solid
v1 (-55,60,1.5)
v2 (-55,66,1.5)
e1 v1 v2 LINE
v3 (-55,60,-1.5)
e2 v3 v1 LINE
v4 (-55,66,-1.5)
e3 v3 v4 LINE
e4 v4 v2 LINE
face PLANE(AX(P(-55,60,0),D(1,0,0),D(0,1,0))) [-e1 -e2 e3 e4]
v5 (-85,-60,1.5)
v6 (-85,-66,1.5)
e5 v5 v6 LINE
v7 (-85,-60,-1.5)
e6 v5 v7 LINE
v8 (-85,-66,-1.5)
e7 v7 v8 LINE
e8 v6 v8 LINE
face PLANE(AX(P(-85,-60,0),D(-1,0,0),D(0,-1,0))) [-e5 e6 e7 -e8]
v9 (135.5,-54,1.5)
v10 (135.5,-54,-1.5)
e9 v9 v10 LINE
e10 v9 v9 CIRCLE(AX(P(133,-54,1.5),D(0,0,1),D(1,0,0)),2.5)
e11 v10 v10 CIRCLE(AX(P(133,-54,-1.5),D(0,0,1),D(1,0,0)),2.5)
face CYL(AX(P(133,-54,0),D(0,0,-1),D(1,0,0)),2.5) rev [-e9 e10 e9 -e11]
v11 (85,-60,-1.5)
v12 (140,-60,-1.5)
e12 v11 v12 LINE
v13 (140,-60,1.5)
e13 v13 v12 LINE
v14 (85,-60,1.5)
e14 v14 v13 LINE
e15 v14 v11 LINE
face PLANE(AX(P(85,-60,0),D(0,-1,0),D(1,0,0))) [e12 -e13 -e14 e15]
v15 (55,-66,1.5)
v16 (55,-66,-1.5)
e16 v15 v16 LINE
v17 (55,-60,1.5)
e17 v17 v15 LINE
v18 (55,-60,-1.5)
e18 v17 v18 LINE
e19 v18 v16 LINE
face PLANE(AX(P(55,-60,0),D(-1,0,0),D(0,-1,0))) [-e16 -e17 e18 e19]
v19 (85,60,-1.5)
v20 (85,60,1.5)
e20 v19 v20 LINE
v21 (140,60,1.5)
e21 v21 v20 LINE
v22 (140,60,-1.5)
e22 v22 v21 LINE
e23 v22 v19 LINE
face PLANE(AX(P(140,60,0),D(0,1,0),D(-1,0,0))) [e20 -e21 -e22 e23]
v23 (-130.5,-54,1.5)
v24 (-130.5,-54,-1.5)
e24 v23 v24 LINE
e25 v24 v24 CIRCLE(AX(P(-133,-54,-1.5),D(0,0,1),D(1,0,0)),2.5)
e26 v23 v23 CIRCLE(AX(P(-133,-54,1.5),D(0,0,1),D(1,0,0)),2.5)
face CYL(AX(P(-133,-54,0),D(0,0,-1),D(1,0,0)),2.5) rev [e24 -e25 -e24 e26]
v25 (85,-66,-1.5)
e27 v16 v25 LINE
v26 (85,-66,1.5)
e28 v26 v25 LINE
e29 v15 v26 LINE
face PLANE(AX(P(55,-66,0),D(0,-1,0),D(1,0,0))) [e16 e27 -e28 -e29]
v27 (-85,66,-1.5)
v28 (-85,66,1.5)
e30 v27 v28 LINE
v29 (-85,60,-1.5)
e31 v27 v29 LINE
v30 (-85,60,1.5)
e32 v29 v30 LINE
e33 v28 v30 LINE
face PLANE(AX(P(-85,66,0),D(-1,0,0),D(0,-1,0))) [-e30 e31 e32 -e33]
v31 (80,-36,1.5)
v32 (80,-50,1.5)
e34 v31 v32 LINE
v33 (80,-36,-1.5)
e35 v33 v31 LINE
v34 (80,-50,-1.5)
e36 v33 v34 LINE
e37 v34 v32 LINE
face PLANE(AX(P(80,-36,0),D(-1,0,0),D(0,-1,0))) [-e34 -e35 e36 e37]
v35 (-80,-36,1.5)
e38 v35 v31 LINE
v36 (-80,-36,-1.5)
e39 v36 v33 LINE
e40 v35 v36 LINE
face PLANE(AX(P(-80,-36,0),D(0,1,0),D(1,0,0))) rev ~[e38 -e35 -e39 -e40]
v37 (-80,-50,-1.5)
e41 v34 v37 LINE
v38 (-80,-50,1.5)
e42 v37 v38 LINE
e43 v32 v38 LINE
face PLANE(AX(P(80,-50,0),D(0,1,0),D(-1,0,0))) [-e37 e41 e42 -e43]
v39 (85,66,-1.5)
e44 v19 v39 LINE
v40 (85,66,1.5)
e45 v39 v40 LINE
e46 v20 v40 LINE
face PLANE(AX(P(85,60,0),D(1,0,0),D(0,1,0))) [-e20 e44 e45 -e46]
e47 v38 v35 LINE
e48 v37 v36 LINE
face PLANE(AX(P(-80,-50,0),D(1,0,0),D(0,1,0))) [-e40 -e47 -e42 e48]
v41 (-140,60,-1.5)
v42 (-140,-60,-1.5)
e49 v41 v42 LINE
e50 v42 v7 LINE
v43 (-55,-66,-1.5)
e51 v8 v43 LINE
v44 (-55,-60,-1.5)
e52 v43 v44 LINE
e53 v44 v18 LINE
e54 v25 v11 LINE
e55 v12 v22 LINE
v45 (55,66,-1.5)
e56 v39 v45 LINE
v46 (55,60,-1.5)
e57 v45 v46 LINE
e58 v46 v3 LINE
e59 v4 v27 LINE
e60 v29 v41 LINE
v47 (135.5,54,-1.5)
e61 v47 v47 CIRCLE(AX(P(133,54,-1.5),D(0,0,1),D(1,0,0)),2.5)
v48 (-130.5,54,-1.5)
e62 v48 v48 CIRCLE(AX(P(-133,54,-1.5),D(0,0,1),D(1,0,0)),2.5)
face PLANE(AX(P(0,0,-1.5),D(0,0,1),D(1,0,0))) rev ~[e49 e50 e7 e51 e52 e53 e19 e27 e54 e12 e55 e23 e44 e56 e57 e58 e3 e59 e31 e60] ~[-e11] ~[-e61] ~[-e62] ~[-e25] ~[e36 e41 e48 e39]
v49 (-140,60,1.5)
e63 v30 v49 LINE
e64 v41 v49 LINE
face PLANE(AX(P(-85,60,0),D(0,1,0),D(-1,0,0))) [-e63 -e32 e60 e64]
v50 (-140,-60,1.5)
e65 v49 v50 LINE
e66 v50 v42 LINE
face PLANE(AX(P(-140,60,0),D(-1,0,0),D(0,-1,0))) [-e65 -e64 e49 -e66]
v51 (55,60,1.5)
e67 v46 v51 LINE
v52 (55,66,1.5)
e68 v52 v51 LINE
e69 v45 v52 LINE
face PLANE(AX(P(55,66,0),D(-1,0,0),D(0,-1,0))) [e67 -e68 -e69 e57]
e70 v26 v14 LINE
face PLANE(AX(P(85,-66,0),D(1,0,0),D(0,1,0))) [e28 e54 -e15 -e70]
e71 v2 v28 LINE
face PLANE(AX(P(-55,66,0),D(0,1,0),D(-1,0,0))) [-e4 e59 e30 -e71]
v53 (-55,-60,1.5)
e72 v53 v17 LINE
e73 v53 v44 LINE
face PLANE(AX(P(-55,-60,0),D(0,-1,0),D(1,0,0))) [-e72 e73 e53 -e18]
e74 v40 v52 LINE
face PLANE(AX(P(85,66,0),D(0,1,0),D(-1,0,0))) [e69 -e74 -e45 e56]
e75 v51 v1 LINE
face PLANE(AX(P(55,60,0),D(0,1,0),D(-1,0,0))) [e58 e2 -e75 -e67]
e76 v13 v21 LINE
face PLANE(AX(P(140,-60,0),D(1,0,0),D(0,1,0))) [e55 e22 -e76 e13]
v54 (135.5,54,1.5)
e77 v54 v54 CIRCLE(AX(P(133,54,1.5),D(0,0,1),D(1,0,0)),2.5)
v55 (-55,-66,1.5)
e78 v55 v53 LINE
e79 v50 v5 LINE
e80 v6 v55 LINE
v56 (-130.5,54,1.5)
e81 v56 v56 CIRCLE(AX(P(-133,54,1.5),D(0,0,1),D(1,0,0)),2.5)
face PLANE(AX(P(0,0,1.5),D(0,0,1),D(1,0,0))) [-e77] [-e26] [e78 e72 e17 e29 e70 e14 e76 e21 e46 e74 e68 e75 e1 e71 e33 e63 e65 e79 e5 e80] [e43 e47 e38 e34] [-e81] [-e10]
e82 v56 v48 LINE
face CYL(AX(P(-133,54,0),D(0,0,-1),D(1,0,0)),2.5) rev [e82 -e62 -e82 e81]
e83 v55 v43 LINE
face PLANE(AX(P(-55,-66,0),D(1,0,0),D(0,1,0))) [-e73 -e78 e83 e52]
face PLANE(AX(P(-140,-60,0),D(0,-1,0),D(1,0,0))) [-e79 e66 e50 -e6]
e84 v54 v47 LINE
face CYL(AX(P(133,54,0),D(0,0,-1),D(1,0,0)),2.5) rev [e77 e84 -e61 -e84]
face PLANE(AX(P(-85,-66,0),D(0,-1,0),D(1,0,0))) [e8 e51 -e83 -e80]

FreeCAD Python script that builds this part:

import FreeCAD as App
import Part
import Sketcher


def add_polygon(sketch, points):
    """Adds a closed chain of lines whose ends are joined by coincident constraints."""
    first, n = sketch.GeometryCount, len(points)
    for a, b in zip(points, points[1:] + points[:1]):
        sketch.addGeometry(Part.LineSegment(App.Vector(*a, 0), App.Vector(*b, 0)), False)
    for i in range(n):
        sketch.addConstraint(Sketcher.Constraint("Coincident", first + i, 2, first + (i + 1) % n, 1))

doc = App.newDocument("Part")
body = doc.addObject("PartDesign::Body", "Body")

sketch1 = body.newObject("Sketcher::SketchObject", "Sketch")
sketch1.AttachmentSupport = (doc.getObject("XY_Plane"), [""])
sketch1.MapMode = "FlatFace"
add_polygon(sketch1, [(140, -60), (140, 60), (85, 60), (85, 66), (55, 66), (55, 60), (-55, 60), (-55, 66), (-85, 66), (-85, 60), (-140, 60), (-140, -60), (-85, -60), (-85, -66), (-55, -66), (-55, -60), (55, -60), (55, -66), (85, -66), (85, -60)])
sketch1.addGeometry(Part.Circle(App.Vector(-133, -54, 0), App.Vector(0, 0, 1), 2.5), False)
add_polygon(sketch1, [(80, -50), (-80, -50), (-80, -36), (80, -36)])
sketch1.addGeometry(Part.Circle(App.Vector(133, -54, 0), App.Vector(0, 0, 1), 2.5), False)
sketch1.addGeometry(Part.Circle(App.Vector(-133, 54, 0), App.Vector(0, 0, 1), 2.5), False)
sketch1.addGeometry(Part.Circle(App.Vector(133, 54, 0), App.Vector(0, 0, 1), 2.5), False)
sketch1.addConstraint([
    Sketcher.Constraint("Vertical", 0),
    Sketcher.Constraint("Horizontal", 1),
    Sketcher.Constraint("Vertical", 2),
    Sketcher.Constraint("Horizontal", 3),
    Sketcher.Constraint("Vertical", 4),
    Sketcher.Constraint("Horizontal", 5),
    Sketcher.Constraint("Vertical", 6),
    Sketcher.Constraint("Horizontal", 7),
    Sketcher.Constraint("Vertical", 8),
    Sketcher.Constraint("Horizontal", 9),
    Sketcher.Constraint("Vertical", 10),
    Sketcher.Constraint("Horizontal", 11),
    Sketcher.Constraint("Vertical", 12),
    Sketcher.Constraint("Horizontal", 13),
    Sketcher.Constraint("Vertical", 14),
    Sketcher.Constraint("Horizontal", 15),
    Sketcher.Constraint("Vertical", 16),
    Sketcher.Constraint("Horizontal", 17),
    Sketcher.Constraint("Vertical", 18),
    Sketcher.Constraint("Horizontal", 19),
    Sketcher.Constraint("Horizontal", 21),
    Sketcher.Constraint("Vertical", 22),
    Sketcher.Constraint("Horizontal", 23),
    Sketcher.Constraint("Vertical", 24),
    Sketcher.Constraint("Equal", 20, 25),
    Sketcher.Constraint("Equal", 25, 26),
    Sketcher.Constraint("Equal", 26, 27),
    Sketcher.Constraint("Symmetric", 25, 3, 26, 3, -1, 1),
    Sketcher.Constraint("Symmetric", 20, 3, 27, 3, -1, 1),
    Sketcher.Constraint("Symmetric", 0, 2, 10, 2, -1, 1),
    Sketcher.Constraint("Symmetric", 2, 2, 12, 2, -1, 1),
    Sketcher.Constraint("Symmetric", 4, 2, 14, 2, -1, 1),
    Sketcher.Constraint("Symmetric", 6, 2, 16, 2, -1, 1),
    Sketcher.Constraint("Symmetric", 8, 2, 18, 2, -1, 1),
    Sketcher.Constraint("Symmetric", 20, 3, 25, 3, -2),
    Sketcher.Constraint("Symmetric", 3, 2, 6, 2, -2),
    Sketcher.Constraint("Symmetric", 1, 2, 8, 2, -2),
    Sketcher.Constraint("Horizontal", 1, 2, 4, 2),
    Sketcher.Constraint("Diameter", 20, 5.0),
    Sketcher.Constraint("DistanceX", 1, 2, 1, 1, 55.0),
    Sketcher.Constraint("DistanceX", 3, 2, 3, 1, 30.0),
    Sketcher.Constraint("DistanceX", 5, 2, 5, 1, 110.0),
    Sketcher.Constraint("DistanceX", 21, 2, 21, 1, 160.0),
    Sketcher.Constraint("DistanceY", 0, 1, 0, 2, 120.0),
    Sketcher.Constraint("DistanceY", 2, 1, 2, 2, 6.0),
    Sketcher.Constraint("DistanceY", 22, 1, 22, 2, 14.0),
    Sketcher.Constraint("DistanceX", 20, 3, -1, 1, 133.0),
    Sketcher.Constraint("DistanceY", 20, 3, -1, 1, 54.0),
    Sketcher.Constraint("DistanceX", 21, 2, -1, 1, 80.0),
    Sketcher.Constraint("DistanceY", 21, 2, -1, 1, 50.0),
])
pad1 = body.newObject("PartDesign::Pad", "Pad")
pad1.Profile = sketch1
pad1.Length = 3
pad1.Midplane = True

doc.recompute()
